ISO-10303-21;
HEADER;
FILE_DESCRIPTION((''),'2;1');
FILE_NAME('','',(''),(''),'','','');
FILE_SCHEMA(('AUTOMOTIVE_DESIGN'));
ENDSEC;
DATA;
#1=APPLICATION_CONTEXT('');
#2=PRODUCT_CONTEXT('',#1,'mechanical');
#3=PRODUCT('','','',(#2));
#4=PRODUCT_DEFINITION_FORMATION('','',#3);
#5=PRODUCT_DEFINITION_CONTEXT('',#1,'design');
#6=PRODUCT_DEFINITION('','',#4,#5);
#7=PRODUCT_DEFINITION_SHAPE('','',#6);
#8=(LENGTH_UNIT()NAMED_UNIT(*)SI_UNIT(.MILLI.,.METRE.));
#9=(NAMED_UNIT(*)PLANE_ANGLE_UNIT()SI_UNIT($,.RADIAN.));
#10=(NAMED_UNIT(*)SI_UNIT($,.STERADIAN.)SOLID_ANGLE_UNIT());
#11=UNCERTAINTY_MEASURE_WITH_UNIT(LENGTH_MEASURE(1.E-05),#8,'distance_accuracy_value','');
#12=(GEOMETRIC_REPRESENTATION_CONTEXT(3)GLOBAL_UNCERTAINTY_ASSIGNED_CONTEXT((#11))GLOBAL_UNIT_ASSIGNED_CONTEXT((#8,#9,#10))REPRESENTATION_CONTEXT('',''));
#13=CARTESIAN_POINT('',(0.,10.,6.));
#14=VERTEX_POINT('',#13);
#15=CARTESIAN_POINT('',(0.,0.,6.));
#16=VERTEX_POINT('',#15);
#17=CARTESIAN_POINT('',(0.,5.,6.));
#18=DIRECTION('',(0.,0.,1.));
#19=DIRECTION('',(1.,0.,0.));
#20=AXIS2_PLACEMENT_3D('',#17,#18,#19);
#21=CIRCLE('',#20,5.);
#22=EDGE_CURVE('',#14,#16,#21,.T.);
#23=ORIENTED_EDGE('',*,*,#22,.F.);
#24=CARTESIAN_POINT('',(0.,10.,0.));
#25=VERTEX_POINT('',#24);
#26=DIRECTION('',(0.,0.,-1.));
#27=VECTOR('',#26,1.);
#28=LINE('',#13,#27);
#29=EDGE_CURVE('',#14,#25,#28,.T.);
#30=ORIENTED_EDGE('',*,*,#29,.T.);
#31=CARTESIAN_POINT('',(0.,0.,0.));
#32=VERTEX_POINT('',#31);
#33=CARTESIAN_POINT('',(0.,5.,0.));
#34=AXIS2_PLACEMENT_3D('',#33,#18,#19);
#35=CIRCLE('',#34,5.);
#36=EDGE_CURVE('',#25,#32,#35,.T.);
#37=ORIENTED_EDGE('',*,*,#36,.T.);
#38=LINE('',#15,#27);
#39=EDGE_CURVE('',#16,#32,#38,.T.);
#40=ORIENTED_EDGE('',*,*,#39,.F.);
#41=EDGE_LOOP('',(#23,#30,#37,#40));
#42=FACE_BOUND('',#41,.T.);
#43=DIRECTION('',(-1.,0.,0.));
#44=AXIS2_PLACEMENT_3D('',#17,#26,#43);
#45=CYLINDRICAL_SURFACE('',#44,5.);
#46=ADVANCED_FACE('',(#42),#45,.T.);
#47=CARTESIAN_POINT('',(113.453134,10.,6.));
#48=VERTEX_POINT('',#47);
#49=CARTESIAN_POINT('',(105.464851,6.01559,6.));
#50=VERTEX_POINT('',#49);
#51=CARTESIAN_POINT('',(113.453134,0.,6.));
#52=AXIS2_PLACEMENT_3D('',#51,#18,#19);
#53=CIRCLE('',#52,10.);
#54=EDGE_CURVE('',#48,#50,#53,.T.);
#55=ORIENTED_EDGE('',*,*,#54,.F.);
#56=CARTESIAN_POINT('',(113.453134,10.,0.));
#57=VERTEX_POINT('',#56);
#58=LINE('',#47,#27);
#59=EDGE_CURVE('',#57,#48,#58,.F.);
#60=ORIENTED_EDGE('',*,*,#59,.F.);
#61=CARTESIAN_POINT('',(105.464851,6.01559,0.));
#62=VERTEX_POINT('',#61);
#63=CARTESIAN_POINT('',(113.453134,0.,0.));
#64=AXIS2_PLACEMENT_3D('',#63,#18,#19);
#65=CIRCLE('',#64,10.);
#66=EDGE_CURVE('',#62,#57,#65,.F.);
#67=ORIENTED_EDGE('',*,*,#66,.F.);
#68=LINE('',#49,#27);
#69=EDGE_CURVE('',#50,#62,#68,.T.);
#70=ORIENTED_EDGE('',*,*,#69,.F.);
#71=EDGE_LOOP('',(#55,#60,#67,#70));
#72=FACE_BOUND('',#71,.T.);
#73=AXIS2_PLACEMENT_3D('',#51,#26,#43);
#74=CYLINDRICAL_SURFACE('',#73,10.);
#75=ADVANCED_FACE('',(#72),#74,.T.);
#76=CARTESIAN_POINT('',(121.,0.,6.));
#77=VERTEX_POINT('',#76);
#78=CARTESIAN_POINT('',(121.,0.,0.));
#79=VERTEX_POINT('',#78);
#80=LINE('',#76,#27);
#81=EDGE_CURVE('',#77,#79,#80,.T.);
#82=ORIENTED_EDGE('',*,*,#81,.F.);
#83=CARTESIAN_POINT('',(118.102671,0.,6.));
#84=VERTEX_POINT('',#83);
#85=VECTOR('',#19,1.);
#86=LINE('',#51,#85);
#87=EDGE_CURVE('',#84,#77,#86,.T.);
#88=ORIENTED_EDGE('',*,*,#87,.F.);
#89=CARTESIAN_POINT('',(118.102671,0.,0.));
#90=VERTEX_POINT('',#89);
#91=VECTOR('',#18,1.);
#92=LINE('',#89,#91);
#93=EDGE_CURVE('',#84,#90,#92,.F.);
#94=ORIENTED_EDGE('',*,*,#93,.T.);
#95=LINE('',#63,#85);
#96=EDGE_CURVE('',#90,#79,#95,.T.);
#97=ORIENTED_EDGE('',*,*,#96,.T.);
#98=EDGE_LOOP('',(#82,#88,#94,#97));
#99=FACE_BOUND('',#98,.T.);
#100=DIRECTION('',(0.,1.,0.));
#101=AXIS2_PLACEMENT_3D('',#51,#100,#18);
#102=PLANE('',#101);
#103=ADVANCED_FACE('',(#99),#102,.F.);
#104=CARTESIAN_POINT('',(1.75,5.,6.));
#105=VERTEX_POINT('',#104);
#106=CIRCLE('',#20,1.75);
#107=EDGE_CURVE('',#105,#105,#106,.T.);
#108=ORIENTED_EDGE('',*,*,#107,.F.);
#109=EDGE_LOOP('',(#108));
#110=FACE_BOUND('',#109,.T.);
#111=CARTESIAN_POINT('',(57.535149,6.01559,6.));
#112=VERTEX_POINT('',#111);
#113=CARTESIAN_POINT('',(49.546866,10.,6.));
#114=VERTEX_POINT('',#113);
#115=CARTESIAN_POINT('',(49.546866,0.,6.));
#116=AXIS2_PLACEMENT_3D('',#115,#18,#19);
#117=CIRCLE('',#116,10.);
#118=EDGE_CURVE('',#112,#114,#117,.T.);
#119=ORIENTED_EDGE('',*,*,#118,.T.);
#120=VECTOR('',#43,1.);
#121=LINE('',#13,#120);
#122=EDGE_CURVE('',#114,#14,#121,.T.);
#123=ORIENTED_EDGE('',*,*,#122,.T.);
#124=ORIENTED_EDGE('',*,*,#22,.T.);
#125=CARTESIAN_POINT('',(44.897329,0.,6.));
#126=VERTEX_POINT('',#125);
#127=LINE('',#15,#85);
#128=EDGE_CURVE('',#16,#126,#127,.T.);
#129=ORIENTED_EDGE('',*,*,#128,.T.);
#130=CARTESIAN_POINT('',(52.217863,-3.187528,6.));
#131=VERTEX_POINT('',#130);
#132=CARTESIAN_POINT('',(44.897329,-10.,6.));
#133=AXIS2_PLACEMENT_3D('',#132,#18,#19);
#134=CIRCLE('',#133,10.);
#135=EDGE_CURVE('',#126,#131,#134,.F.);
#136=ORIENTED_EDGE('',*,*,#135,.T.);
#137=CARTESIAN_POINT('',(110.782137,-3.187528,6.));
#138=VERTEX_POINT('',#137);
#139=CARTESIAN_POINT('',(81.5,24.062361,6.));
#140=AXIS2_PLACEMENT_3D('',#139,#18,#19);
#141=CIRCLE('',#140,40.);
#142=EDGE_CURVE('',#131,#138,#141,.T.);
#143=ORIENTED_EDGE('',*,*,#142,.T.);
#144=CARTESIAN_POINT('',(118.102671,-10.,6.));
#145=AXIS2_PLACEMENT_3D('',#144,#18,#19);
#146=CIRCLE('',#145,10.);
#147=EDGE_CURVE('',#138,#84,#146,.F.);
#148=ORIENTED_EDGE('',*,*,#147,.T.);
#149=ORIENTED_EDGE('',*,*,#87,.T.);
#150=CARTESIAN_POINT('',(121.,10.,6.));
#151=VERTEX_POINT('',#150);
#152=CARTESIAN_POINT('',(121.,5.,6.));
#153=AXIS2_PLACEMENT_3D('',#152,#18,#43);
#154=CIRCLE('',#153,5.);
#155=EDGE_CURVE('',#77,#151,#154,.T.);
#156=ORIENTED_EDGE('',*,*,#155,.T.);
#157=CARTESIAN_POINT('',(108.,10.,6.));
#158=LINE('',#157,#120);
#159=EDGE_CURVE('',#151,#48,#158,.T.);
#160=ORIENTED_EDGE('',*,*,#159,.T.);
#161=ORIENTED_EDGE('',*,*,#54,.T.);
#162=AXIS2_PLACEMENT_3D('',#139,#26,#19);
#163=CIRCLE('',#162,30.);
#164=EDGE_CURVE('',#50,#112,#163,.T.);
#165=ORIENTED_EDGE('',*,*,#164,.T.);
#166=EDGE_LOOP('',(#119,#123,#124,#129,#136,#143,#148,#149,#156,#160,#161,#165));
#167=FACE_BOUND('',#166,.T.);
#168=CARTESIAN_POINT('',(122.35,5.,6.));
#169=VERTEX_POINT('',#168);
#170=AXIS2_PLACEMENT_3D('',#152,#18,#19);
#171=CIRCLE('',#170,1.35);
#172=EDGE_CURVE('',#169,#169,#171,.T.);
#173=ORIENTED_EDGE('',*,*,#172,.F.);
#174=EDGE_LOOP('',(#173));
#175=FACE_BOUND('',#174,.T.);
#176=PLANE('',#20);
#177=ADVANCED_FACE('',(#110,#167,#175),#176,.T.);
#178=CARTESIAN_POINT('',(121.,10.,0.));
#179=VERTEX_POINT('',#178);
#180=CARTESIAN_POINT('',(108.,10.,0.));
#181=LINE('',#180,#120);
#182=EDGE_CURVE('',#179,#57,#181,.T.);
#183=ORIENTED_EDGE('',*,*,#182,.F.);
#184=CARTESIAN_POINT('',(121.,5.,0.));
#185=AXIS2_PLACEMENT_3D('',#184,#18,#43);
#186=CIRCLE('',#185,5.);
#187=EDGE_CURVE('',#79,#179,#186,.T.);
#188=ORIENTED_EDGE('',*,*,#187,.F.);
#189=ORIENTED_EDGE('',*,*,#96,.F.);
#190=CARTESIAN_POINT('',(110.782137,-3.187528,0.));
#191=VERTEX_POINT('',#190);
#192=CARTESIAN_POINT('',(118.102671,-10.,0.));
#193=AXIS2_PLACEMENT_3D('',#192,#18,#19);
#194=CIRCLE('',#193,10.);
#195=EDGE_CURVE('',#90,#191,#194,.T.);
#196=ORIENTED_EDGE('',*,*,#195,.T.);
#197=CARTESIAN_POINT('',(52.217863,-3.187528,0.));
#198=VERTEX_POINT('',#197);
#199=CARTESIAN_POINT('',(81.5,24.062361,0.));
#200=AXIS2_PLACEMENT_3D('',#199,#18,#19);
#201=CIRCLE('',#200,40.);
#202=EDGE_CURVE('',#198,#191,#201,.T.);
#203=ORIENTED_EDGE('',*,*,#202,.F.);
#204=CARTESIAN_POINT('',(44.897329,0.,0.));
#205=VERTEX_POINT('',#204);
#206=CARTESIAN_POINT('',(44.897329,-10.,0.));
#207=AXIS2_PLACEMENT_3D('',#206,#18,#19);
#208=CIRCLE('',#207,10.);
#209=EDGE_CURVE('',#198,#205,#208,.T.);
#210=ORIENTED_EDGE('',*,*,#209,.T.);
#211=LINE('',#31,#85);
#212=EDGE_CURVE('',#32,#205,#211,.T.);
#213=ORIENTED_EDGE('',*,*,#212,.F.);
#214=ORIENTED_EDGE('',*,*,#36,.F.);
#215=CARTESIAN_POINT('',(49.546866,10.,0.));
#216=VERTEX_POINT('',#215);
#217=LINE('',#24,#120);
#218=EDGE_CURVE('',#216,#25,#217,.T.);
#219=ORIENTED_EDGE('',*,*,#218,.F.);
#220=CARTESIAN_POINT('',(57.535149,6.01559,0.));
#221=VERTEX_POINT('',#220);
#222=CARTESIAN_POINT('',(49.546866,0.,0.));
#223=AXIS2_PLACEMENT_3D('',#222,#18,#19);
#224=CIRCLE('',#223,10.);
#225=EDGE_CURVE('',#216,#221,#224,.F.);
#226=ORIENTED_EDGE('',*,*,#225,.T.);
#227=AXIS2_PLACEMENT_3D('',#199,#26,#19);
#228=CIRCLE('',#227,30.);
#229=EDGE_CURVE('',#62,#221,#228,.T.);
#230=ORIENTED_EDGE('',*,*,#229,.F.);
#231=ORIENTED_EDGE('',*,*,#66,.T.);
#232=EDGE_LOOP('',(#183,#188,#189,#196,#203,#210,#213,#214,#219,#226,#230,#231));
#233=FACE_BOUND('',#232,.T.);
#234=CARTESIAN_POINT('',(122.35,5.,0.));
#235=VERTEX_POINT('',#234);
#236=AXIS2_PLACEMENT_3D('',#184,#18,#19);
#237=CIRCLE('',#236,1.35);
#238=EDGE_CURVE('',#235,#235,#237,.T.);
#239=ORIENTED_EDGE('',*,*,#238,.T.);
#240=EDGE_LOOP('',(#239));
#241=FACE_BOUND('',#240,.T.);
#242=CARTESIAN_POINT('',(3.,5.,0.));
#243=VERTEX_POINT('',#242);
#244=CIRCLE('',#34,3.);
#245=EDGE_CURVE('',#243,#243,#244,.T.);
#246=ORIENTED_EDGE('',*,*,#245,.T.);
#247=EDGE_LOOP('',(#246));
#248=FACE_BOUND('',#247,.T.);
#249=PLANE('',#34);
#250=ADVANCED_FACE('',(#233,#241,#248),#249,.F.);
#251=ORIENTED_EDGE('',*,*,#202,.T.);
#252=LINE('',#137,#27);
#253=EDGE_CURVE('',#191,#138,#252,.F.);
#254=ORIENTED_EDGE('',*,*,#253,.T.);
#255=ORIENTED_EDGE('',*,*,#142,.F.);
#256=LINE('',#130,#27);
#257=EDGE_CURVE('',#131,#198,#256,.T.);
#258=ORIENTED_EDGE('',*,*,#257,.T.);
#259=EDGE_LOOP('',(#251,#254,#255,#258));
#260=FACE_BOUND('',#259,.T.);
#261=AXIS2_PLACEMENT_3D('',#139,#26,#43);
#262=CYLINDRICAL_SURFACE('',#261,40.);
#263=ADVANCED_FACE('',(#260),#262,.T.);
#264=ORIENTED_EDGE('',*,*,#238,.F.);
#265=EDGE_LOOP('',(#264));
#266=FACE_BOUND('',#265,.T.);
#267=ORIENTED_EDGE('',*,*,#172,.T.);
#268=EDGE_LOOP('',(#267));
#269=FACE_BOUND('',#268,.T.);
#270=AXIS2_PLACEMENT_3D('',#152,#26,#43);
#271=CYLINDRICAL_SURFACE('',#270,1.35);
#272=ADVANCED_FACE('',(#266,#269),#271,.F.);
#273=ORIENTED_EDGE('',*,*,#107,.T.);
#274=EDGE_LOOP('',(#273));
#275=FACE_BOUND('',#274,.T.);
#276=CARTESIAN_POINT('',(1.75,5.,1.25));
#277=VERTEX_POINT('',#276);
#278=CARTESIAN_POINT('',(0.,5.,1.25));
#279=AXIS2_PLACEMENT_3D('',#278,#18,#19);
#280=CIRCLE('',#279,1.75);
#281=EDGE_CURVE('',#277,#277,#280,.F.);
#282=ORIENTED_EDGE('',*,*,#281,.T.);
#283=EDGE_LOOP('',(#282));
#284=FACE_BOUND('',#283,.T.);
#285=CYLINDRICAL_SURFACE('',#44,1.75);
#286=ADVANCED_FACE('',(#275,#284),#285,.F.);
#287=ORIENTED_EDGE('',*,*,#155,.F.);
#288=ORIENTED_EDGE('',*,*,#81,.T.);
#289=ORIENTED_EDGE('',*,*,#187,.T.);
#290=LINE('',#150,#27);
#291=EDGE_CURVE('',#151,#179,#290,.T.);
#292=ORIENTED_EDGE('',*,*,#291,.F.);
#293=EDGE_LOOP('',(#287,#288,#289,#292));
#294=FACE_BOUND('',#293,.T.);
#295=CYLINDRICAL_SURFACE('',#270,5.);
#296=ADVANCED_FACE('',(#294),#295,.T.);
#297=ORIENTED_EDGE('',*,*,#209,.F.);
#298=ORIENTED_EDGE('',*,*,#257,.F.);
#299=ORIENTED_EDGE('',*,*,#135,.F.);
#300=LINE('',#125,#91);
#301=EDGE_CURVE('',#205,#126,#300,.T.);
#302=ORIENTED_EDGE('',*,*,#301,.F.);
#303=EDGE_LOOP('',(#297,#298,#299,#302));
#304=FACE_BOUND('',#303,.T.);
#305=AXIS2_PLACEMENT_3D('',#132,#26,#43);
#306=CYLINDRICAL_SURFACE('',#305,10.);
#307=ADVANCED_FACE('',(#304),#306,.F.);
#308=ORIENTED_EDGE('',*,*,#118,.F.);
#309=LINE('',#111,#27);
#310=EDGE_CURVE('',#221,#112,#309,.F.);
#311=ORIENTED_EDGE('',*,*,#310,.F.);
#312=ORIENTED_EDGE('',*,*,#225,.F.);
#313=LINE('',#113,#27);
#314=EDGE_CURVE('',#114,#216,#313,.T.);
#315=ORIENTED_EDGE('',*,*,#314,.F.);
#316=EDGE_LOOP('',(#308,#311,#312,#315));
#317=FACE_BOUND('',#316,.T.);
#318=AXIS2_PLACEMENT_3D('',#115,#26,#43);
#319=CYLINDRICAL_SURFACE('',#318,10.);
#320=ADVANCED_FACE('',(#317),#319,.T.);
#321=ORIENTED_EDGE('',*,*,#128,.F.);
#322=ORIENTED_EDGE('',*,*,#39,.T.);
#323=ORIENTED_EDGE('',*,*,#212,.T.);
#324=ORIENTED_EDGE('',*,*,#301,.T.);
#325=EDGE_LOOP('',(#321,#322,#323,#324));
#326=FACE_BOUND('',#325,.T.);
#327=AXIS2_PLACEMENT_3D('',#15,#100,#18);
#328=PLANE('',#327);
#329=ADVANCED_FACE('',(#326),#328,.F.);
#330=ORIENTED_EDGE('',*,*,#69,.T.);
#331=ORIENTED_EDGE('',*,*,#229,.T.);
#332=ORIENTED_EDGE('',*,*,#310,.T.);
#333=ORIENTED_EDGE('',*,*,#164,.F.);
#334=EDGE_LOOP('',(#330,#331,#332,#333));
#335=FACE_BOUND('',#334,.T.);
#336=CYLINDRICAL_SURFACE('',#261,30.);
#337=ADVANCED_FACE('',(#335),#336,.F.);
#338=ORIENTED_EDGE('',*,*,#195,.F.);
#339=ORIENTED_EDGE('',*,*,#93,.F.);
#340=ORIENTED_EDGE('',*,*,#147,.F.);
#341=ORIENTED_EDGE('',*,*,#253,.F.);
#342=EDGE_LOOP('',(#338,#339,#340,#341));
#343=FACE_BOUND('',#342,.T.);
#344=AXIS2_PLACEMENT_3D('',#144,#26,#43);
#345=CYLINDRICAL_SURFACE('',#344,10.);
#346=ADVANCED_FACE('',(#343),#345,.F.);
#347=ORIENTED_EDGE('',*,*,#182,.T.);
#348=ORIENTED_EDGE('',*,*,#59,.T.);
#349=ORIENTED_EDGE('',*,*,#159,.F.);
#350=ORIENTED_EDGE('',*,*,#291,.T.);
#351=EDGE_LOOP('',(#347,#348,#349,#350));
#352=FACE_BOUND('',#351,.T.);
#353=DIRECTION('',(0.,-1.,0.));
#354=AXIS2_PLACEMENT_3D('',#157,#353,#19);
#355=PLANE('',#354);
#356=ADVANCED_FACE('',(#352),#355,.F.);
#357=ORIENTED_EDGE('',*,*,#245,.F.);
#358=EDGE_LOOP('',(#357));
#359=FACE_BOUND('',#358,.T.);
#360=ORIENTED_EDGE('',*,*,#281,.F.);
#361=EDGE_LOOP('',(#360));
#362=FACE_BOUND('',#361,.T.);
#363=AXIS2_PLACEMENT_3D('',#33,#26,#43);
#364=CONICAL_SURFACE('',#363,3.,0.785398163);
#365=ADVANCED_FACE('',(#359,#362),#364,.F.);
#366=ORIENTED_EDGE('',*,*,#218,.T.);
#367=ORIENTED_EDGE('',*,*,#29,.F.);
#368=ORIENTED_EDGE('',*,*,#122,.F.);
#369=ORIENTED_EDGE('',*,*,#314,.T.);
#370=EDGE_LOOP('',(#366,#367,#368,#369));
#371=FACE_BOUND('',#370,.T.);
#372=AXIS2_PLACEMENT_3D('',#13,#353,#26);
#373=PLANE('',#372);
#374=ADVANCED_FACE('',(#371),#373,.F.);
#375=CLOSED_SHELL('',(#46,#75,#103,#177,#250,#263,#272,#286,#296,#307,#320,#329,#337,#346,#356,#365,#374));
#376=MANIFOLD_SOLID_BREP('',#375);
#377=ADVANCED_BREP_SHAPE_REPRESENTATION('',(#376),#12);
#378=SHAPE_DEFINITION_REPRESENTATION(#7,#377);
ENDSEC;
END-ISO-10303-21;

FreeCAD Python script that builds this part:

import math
import FreeCAD as App
import Part
import Sketcher
from FreeCAD import Vector
Q = App.Units.Quantity


def edges_at(feature, points):
    """Names of the edges that pass closest to the given points."""
    edges = feature.Shape.Edges
    near = lambda p: min(range(len(edges)), key=lambda i: edges[i].distToShape(Part.Vertex(*p))[0])
    return sorted({f"Edge{near(p) + 1}" for p in points})

doc = App.newDocument("Part")
body = doc.addObject("PartDesign::Body", "Body")

# Sketch on XY plane
sketch1 = doc.addObject("Sketcher::SketchObject", "Sketch")
body.addObject(sketch1)
sketch1.AttachmentSupport = (doc.XY_Plane, [""])
sketch1.MapMode = "FlatFace"
sketch1.addGeometry([
    Part.LineSegment(Vector(113.453134, 0, 0), Vector(121, 0, 0)),  # 0
    Part.ArcOfCircle(Part.Circle(Vector(121, 5, 0), Vector(0, 0, 1), 5), math.radians(-90), math.radians(90)),  # 1
    Part.LineSegment(Vector(121, 10, 0), Vector(108, 10, 0)),  # 2
    Part.ArcOfCircle(Part.Circle(Vector(81.5, 24.062361, 0), Vector(0, 0, 1), 30), math.radians(-152.047113), math.radians(-27.952887)),  # 3
    Part.LineSegment(Vector(55, 10, 0), Vector(0, 10, 0)),  # 4
    Part.ArcOfCircle(Part.Circle(Vector(0, 5, 0), Vector(0, 0, 1), 5), math.radians(90), math.radians(270)),  # 5
    Part.LineSegment(Vector(0, 0, 0), Vector(49.546866, 0, 0)),  # 6
    Part.ArcOfCircle(Part.Circle(Vector(81.5, 24.062361, 0), Vector(0, 0, 1), 40), math.radians(-143.018363), math.radians(-36.981637)),  # 7
    Part.Circle(Vector(0, 5, 0), Vector(0, 0, 1), 1.75),  # 8
    Part.Circle(Vector(121, 5, 0), Vector(0, 0, 1), 1.35),  # 9
], False)
sketch1.addConstraint([
    Sketcher.Constraint("Tangent", 0, 2, 1, 1),
    Sketcher.Constraint("Tangent", 1, 2, 2, 1),
    Sketcher.Constraint("Coincident", 2, 2, 3, 2),
    Sketcher.Constraint("Coincident", 3, 1, 4, 1),
    Sketcher.Constraint("Tangent", 4, 2, 5, 1),
    Sketcher.Constraint("Tangent", 5, 2, 6, 1),
    Sketcher.Constraint("Coincident", 6, 2, 7, 1),
    Sketcher.Constraint("Coincident", 7, 2, 0, 1),
    Sketcher.Constraint("Horizontal", 0),
    Sketcher.Constraint("Horizontal", 2),
    Sketcher.Constraint("Horizontal", 4),
    Sketcher.Constraint("Horizontal", 6),
    Sketcher.Constraint("Coincident", 5, 2, -1, 1),
    Sketcher.Constraint("Coincident", 7, 3, 3, 3),
    Sketcher.Constraint("Coincident", 8, 3, 5, 3),
    Sketcher.Constraint("Coincident", 9, 3, 1, 3),
    Sketcher.Constraint("Equal", 1, 5),
    Sketcher.Constraint("PointOnObject", 0, 2, -1),
    Sketcher.Constraint("Radius", 1, Q("5 mm")),
    Sketcher.Constraint("Radius", 3, Q("30 mm")),
    Sketcher.Constraint("Radius", 7, Q("40 mm")),
    Sketcher.Constraint("Diameter", 8, Q("3.5 mm")),
    Sketcher.Constraint("Diameter", 9, Q("2.7 mm")),
    Sketcher.Constraint("DistanceX", 2, 2, 2, 1, Q("13 mm")),
    Sketcher.Constraint("DistanceX", 4, 2, 4, 1, Q("55 mm")),
    Sketcher.Constraint("DistanceX", -1, 1, 1, 3, Q("121 mm")),
])
pad1 = doc.addObject("PartDesign::Pad", "Pad")
body.addObject(pad1)
pad1.Profile = sketch1
pad1.Length = 6
doc.recompute()

chamfer = doc.addObject("PartDesign::Chamfer", "Chamfer")
body.addObject(chamfer)
chamfer.Base = (pad1, edges_at(pad1, [(-1.75, 5, 0)]))
chamfer.Size = 1.25
doc.recompute()

fillet = doc.addObject("PartDesign::Fillet", "Fillet")
body.addObject(fillet)
fillet.Base = (chamfer, edges_at(chamfer, [
    (55, 10, 3),
    (108, 10, 3),
    (113.453, 0, 3),
    (49.547, 0, 3),
]))
fillet.Radius = 10

doc.recompute()
